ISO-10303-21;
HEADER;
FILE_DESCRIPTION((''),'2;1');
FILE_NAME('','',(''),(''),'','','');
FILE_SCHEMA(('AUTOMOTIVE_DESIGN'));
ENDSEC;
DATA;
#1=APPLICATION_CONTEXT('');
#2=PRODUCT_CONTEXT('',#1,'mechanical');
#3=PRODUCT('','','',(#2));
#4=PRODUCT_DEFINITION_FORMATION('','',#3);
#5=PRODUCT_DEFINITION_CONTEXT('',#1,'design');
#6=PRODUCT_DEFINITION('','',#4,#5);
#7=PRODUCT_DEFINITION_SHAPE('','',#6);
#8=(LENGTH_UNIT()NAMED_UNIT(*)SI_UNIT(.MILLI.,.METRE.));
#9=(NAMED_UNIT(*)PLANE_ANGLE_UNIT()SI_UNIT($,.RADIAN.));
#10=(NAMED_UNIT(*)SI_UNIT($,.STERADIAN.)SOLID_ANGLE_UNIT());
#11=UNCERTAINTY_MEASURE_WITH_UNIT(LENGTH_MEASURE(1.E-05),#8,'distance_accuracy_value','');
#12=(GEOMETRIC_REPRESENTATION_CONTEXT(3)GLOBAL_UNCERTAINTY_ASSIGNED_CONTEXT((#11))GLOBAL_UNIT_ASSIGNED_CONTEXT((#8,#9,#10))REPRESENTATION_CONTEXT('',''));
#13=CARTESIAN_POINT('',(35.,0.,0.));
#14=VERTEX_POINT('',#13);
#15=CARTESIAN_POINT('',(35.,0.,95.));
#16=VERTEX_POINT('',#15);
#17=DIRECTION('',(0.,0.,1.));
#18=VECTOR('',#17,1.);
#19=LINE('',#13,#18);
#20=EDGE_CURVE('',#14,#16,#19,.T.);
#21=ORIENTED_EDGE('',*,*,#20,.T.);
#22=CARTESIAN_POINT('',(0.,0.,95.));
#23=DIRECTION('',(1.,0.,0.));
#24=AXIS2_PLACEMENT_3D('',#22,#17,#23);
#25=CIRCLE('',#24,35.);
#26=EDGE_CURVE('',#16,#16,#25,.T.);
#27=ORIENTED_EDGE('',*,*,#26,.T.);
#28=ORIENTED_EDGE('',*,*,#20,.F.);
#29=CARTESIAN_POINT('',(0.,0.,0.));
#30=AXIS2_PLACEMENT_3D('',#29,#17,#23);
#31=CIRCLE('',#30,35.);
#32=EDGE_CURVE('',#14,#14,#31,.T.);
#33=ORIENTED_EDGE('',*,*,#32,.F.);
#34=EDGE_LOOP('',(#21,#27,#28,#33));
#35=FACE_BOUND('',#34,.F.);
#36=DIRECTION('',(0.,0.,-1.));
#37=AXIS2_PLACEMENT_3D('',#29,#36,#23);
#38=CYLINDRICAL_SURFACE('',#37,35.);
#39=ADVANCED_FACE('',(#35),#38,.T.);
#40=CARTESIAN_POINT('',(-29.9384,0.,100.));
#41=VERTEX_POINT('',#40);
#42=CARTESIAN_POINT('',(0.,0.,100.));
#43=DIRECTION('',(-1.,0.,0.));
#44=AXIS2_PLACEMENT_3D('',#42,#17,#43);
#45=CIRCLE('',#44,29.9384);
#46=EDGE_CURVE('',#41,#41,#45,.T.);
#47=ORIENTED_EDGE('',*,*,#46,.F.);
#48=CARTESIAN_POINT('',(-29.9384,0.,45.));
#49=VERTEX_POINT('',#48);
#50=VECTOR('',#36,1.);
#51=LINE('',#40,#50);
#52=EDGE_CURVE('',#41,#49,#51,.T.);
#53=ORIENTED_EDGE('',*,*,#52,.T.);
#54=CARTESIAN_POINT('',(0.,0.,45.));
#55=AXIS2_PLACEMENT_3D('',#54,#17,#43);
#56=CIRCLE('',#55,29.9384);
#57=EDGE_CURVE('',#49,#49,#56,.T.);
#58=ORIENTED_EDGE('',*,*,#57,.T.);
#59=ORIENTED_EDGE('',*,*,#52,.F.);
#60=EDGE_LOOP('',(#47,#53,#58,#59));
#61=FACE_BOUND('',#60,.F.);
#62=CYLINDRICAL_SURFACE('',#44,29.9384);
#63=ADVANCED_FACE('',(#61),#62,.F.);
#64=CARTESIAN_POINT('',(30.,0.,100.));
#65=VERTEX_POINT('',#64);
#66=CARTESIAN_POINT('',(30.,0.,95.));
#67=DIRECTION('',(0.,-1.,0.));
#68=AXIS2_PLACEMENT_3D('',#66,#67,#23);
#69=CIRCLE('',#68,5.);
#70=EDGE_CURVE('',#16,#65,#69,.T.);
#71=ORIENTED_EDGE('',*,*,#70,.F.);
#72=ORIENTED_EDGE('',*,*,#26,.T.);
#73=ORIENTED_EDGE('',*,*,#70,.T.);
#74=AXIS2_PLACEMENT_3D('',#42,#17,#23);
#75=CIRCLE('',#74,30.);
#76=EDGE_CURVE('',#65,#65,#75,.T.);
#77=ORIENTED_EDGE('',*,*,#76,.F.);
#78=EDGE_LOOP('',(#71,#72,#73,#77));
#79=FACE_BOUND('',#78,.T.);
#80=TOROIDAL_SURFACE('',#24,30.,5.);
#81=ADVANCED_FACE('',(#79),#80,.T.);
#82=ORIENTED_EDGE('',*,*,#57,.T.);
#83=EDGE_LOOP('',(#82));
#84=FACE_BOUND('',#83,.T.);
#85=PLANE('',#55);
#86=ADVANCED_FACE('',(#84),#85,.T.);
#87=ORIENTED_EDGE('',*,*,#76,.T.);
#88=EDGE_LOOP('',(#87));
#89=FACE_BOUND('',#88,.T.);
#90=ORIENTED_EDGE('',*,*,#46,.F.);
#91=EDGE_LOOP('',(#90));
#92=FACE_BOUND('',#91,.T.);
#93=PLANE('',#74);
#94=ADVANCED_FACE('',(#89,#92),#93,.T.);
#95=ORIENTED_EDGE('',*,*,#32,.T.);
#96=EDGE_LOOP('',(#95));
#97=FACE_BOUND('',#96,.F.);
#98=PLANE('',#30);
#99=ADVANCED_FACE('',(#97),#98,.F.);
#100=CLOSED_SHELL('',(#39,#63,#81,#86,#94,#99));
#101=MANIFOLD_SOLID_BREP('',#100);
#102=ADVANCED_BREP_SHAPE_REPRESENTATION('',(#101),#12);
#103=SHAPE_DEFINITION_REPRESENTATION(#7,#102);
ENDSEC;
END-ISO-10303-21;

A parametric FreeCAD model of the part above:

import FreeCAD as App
import Part
import Sketcher
Q = App.Units.Quantity


def edges_at(feature, points):
    """Names of the edges that pass closest to the given points."""
    edges = feature.Shape.Edges
    near = lambda p: min(range(len(edges)), key=lambda i: edges[i].distToShape(Part.Vertex(*p))[0])
    return sorted({f"Edge{near(p) + 1}" for p in points})

doc = App.newDocument("Part")
params = doc.addObject("Spreadsheet::Sheet", "Params")
for row, (alias, value) in enumerate([
    ("sketch1_diameter", "70 mm"),
    ("pad1_length", "100 mm"),
    ("pocket1_length", "55 mm"),
    ("fillet_radius", "5 mm"),
], start=1):
    params.set(f"A{row}", alias)
    params.set(f"B{row}", "=" + value)
    params.setAlias(f"B{row}", alias)

body = doc.addObject("PartDesign::Body", "Body")

sketch1 = body.newObject("Sketcher::SketchObject", "Sketch")
sketch1.AttachmentSupport = (doc.getObject("XY_Plane"), [""])
sketch1.MapMode = "FlatFace"
sketch1.addGeometry(Part.Circle(App.Vector(0, 0, 0), App.Vector(0, 0, 1), 35), False)
sketch1.addConstraint(Sketcher.Constraint("Coincident", 0, 3, -1, 1))
sketch1.addConstraint(Sketcher.Constraint("Diameter", 0, Q("70 mm")))
sketch1.setExpression("Constraints[1]", "Params.sketch1_diameter")
pad1 = body.newObject("PartDesign::Pad", "Pad")
pad1.Profile = sketch1
pad1.setExpression("Length", "Params.pad1_length")

sketch2 = body.newObject("Sketcher::SketchObject", "Sketch001")
sketch2.AttachmentSupport = (doc.getObject("XY_Plane"), [""])
sketch2.MapMode = "FlatFace"
sketch2.AttachmentOffset = App.Placement(App.Vector(0, 0, 100), App.Rotation())
sketch2.addGeometry(Part.Circle(App.Vector(0, 0, 0), App.Vector(0, 0, 1), 29.9384), False)
sketch2.addConstraint(Sketcher.Constraint("Coincident", 0, 3, -1, 1))
sketch2.addConstraint(Sketcher.Constraint("Diameter", 0, Q("59.8768 mm")))
pocket1 = body.newObject("PartDesign::Pocket", "Pocket")
pocket1.Profile = sketch2
pocket1.setExpression("Length", "Params.pocket1_length")
doc.recompute()

fillet = body.newObject("PartDesign::Fillet", "Fillet")
fillet.Base = (pocket1, edges_at(pocket1, [(-32.632, -12.656, 100)]))
fillet.setExpression("Radius", "Params.fillet_radius")

doc.recompute()
